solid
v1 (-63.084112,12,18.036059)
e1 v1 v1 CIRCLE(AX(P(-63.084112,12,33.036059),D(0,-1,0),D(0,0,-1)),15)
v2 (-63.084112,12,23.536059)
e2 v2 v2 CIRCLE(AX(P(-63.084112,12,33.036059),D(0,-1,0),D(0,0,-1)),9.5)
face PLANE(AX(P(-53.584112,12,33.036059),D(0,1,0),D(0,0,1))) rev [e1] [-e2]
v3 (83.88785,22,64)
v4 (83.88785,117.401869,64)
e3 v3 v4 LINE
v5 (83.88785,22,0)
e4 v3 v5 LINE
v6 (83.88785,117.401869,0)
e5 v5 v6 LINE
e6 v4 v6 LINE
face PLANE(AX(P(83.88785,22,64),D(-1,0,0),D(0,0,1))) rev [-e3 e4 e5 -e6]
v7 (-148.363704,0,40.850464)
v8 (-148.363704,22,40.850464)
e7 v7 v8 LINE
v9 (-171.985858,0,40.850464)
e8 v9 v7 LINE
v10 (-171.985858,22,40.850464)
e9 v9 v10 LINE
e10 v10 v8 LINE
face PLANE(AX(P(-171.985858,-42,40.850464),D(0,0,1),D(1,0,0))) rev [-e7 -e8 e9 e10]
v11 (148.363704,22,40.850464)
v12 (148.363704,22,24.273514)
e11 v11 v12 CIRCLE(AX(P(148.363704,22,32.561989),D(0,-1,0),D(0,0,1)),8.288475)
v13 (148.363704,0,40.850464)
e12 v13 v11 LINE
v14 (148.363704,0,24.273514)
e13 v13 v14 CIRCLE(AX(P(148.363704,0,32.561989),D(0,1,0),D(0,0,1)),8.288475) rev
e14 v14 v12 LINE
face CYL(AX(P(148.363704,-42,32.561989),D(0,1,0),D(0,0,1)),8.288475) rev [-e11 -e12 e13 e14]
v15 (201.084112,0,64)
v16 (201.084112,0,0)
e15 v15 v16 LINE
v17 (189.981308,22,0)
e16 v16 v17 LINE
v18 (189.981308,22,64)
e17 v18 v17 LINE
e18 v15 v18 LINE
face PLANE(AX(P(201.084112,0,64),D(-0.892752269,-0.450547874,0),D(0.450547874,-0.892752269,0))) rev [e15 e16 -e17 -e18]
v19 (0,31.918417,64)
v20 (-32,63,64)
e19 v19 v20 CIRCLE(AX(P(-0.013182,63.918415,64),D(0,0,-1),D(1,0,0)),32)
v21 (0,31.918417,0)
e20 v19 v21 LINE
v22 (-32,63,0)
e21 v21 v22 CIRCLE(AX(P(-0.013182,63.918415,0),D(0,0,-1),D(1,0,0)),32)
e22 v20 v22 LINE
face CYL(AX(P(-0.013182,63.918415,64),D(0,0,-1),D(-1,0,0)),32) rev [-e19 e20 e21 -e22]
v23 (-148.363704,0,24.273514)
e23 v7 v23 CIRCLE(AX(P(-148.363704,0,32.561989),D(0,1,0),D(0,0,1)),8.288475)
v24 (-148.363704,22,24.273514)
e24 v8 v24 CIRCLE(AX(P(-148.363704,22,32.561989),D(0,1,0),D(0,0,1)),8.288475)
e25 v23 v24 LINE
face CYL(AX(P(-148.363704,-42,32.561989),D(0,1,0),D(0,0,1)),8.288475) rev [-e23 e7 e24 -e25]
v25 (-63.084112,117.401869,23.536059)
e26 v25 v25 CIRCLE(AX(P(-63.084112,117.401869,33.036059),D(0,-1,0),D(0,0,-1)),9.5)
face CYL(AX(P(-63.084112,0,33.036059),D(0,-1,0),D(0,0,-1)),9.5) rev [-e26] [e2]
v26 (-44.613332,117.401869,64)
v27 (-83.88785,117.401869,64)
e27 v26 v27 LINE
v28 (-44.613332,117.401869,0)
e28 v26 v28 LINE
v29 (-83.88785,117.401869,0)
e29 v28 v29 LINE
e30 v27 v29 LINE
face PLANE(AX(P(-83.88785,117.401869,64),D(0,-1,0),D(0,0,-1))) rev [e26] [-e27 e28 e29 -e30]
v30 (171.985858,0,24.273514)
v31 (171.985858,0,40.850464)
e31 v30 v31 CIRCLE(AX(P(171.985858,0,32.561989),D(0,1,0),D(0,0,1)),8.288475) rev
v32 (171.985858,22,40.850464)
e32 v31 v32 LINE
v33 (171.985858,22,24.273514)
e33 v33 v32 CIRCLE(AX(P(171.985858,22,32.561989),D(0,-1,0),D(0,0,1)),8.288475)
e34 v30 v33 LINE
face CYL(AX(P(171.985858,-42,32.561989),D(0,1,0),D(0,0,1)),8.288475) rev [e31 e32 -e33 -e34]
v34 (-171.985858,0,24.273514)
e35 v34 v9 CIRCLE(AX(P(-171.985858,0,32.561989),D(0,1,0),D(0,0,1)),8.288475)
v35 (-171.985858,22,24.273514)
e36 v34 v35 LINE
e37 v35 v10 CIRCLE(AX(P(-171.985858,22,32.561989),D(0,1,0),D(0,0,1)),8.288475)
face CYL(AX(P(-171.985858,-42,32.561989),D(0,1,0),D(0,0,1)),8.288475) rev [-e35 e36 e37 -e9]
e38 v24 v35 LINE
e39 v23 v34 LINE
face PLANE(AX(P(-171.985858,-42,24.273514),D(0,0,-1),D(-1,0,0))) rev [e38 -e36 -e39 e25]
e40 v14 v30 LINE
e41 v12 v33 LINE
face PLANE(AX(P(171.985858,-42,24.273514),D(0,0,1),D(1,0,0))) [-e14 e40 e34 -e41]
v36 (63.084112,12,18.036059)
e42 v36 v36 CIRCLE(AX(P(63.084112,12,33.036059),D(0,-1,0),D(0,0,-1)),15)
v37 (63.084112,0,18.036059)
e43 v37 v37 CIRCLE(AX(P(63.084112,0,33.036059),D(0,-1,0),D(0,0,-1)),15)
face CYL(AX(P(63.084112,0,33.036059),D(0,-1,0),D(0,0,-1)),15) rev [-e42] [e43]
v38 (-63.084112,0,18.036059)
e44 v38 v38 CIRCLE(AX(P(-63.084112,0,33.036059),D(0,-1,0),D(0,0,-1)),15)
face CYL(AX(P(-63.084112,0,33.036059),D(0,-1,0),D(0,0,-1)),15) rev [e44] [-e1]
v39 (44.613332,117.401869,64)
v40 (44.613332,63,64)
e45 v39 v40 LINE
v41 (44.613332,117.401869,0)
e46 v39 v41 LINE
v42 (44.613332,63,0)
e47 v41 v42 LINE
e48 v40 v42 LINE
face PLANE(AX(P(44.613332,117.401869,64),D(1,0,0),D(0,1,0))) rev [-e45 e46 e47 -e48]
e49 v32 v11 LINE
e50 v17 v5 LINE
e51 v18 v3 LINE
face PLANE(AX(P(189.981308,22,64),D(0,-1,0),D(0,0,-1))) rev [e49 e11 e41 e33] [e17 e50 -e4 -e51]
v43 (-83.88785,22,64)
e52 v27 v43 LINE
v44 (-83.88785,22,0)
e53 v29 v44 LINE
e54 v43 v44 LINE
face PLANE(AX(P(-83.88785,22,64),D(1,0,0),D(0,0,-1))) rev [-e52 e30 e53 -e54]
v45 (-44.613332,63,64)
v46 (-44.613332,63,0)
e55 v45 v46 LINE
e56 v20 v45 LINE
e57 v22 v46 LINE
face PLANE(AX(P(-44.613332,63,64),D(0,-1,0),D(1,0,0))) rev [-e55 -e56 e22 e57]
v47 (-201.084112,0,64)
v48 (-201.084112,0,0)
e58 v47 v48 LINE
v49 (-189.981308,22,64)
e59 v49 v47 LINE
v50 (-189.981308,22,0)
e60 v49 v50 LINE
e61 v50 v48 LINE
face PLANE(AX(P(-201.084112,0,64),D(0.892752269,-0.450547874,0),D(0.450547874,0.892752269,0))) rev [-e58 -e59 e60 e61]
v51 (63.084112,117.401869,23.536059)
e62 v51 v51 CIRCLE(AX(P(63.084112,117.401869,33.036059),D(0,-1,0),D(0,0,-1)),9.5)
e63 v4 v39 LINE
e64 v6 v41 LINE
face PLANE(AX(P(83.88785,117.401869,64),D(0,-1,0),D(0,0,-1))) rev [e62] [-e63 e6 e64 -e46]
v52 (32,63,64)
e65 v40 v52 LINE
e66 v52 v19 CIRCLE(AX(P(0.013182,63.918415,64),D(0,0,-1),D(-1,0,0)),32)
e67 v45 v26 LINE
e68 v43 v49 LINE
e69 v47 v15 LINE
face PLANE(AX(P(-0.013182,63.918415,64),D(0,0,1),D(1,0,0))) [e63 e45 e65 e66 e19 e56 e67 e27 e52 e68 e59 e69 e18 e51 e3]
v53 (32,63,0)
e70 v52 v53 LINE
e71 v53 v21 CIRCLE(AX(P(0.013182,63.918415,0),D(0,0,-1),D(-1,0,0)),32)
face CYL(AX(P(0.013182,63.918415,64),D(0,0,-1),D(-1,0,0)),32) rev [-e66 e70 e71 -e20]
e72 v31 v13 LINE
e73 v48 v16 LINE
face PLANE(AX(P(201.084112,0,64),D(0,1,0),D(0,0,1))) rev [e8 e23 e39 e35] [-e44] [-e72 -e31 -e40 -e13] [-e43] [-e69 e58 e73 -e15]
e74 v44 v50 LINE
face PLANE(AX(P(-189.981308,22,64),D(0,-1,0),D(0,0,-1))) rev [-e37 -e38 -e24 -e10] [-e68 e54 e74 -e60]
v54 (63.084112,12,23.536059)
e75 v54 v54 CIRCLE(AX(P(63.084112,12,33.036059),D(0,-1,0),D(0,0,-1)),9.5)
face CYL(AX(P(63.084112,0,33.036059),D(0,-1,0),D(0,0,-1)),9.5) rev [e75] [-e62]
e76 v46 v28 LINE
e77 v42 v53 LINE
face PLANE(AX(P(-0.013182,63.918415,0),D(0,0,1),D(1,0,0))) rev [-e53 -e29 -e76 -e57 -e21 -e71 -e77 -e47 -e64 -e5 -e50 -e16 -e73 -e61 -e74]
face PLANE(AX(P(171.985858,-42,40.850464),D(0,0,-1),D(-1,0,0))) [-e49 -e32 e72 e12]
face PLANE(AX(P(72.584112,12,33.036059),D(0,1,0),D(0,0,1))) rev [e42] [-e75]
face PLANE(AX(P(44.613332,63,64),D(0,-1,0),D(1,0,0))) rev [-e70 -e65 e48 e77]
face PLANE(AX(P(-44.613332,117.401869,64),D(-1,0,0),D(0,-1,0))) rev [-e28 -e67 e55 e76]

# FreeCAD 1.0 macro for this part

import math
import FreeCAD as App
import Part
import Sketcher
from FreeCAD import Vector
Q = App.Units.Quantity


def add_polygon(sketch, points):
    """Adds a closed chain of lines whose ends are joined by coincident constraints."""
    first, n = sketch.GeometryCount, len(points)
    for a, b in zip(points, points[1:] + points[:1]):
        sketch.addGeometry(Part.LineSegment(App.Vector(*a, 0), App.Vector(*b, 0)), False)
    for i in range(n):
        sketch.addConstraint(Sketcher.Constraint("Coincident", first + i, 2, first + (i + 1) % n, 1))

doc = App.newDocument("Part")
body = doc.addObject("PartDesign::Body", "Body")

sketch1 = doc.addObject("Sketcher::SketchObject", "Sketch")
body.addObject(sketch1)
sketch1.AttachmentSupport = (doc.XY_Plane, [""])
sketch1.MapMode = "FlatFace"
sketch1.addGeometry(Part.LineSegment(Vector(-190, 22, 0), Vector(-201, 0, 0)), False)
sketch1.addGeometry(Part.LineSegment(Vector(-201, 0, 0), Vector(201, 0, 0)), False)
sketch1.addGeometry(Part.LineSegment(Vector(201, 0, 0), Vector(190, 22, 0)), False)
sketch1.addGeometry(Part.LineSegment(Vector(190, 22, 0), Vector(84, 22, 0)), False)
sketch1.addGeometry(Part.LineSegment(Vector(84, 22, 0), Vector(84, 117, 0)), False)
sketch1.addGeometry(Part.LineSegment(Vector(84, 117, 0), Vector(45, 117, 0)), False)
sketch1.addGeometry(Part.LineSegment(Vector(45, 117, 0), Vector(45, 63, 0)), False)
sketch1.addGeometry(Part.LineSegment(Vector(45, 63, 0), Vector(32, 63, 0)), False)
sketch1.addGeometry(Part.ArcOfCircle(Part.Circle(Vector(0, 64, 0), Vector(0, 0, 1), 32), math.radians(-90), math.radians(-2)), False)
sketch1.addGeometry(Part.ArcOfCircle(Part.Circle(Vector(0, 64, 0), Vector(0, 0, 1), 32), math.radians(-178), math.radians(-90)), False)
sketch1.addGeometry(Part.LineSegment(Vector(-32, 63, 0), Vector(-45, 63, 0)), False)
sketch1.addGeometry(Part.LineSegment(Vector(-45, 63, 0), Vector(-45, 117, 0)), False)
sketch1.addGeometry(Part.LineSegment(Vector(-45, 117, 0), Vector(-84, 117, 0)), False)
sketch1.addGeometry(Part.LineSegment(Vector(-84, 117, 0), Vector(-84, 22, 0)), False)
sketch1.addGeometry(Part.LineSegment(Vector(-84, 22, 0), Vector(-190, 22, 0)), False)
sketch1.addConstraint(Sketcher.Constraint("Coincident", 0, 2, 1, 1))
sketch1.addConstraint(Sketcher.Constraint("Coincident", 1, 2, 2, 1))
sketch1.addConstraint(Sketcher.Constraint("Coincident", 2, 2, 3, 1))
sketch1.addConstraint(Sketcher.Constraint("Coincident", 3, 2, 4, 1))
sketch1.addConstraint(Sketcher.Constraint("Coincident", 4, 2, 5, 1))
sketch1.addConstraint(Sketcher.Constraint("Coincident", 5, 2, 6, 1))
sketch1.addConstraint(Sketcher.Constraint("Coincident", 6, 2, 7, 1))
sketch1.addConstraint(Sketcher.Constraint("Coincident", 7, 2, 8, 2))
sketch1.addConstraint(Sketcher.Constraint("Coincident", 8, 1, 9, 2))
sketch1.addConstraint(Sketcher.Constraint("Coincident", 9, 1, 10, 1))
sketch1.addConstraint(Sketcher.Constraint("Coincident", 10, 2, 11, 1))
sketch1.addConstraint(Sketcher.Constraint("Coincident", 11, 2, 12, 1))
sketch1.addConstraint(Sketcher.Constraint("Coincident", 12, 2, 13, 1))
sketch1.addConstraint(Sketcher.Constraint("Coincident", 13, 2, 14, 1))
sketch1.addConstraint(Sketcher.Constraint("Coincident", 14, 2, 0, 1))
sketch1.addConstraint(Sketcher.Constraint("Horizontal", 1))
sketch1.addConstraint(Sketcher.Constraint("Horizontal", 3))
sketch1.addConstraint(Sketcher.Constraint("Vertical", 4))
sketch1.addConstraint(Sketcher.Constraint("Horizontal", 5))
sketch1.addConstraint(Sketcher.Constraint("Vertical", 6))
sketch1.addConstraint(Sketcher.Constraint("Horizontal", 7))
sketch1.addConstraint(Sketcher.Constraint("Horizontal", 10))
sketch1.addConstraint(Sketcher.Constraint("Vertical", 11))
sketch1.addConstraint(Sketcher.Constraint("Horizontal", 12))
sketch1.addConstraint(Sketcher.Constraint("Vertical", 13))
sketch1.addConstraint(Sketcher.Constraint("Horizontal", 14))
sketch1.addConstraint(Sketcher.Constraint("Equal", 8, 9))
sketch1.addConstraint(Sketcher.Constraint("Symmetric", 0, 2, 1, 2, -1, 1))
sketch1.addConstraint(Sketcher.Constraint("Symmetric", 8, 3, 9, 3, -2))
sketch1.addConstraint(Sketcher.Constraint("Symmetric", 6, 2, 10, 2, -2))
sketch1.addConstraint(Sketcher.Constraint("Symmetric", 4, 2, 12, 2, -2))
sketch1.addConstraint(Sketcher.Constraint("Symmetric", 2, 2, 14, 2, -2))
sketch1.addConstraint(Sketcher.Constraint("Radius", 8, Q("32 mm")))
sketch1.addConstraint(Sketcher.Constraint("DistanceY", -1, 1, 2, 2, Q("22 mm")))
sketch1.addConstraint(Sketcher.Constraint("DistanceY", -1, 1, 6, 2, Q("63 mm")))
sketch1.addConstraint(Sketcher.Constraint("DistanceX", -1, 1, 7, 2, Q("32 mm")))
sketch1.addConstraint(Sketcher.Constraint("DistanceX", 5, 2, 5, 1, Q("39.274518 mm")))
sketch1.addConstraint(Sketcher.Constraint("DistanceY", 4, 1, 4, 2, Q("95.401869 mm")))
sketch1.addConstraint(Sketcher.Constraint("DistanceX", 1, 1, 1, 2, Q("402.168224 mm")))
sketch1.addConstraint(Sketcher.Constraint("DistanceX", 3, 2, 3, 1, Q("106.093458 mm")))
sketch1.addConstraint(Sketcher.Constraint("DistanceX", 7, 2, 7, 1, Q("12.613332 mm")))
sketch1.addConstraint(Sketcher.Constraint("DistanceX", 0, 2, 9, 3, Q("201.07093 mm")))
pad1 = doc.addObject("PartDesign::Pad", "Pad")
body.addObject(pad1)
pad1.Profile = sketch1
pad1.Length = 64

sketch2 = doc.addObject("Sketcher::SketchObject", "Sketch001")
body.addObject(sketch2)
sketch2.AttachmentSupport = (doc.XZ_Plane, [""])
sketch2.MapMode = "FlatFace"
sketch2.AttachmentOffset = App.Placement(Vector(0, 0, -22), App.Rotation())
sketch2.addGeometry(Part.LineSegment(Vector(-148, 24, 0), Vector(-172, 24, 0)), False)
sketch2.addGeometry(Part.ArcOfCircle(Part.Circle(Vector(-172, 33, 0), Vector(0, 0, 1), 8), math.radians(90), math.radians(270)), False)
sketch2.addGeometry(Part.LineSegment(Vector(-172, 41, 0), Vector(-148, 41, 0)), False)
sketch2.addGeometry(Part.ArcOfCircle(Part.Circle(Vector(-148, 33, 0), Vector(0, 0, 1), 8), math.radians(-90), math.radians(90)), False)
sketch2.addConstraint(Sketcher.Constraint("Tangent", 0, 2, 1, 2))
sketch2.addConstraint(Sketcher.Constraint("Tangent", 1, 1, 2, 1))
sketch2.addConstraint(Sketcher.Constraint("Tangent", 2, 2, 3, 2))
sketch2.addConstraint(Sketcher.Constraint("Tangent", 3, 1, 0, 1))
sketch2.addConstraint(Sketcher.Constraint("Horizontal", 0))
sketch2.addConstraint(Sketcher.Constraint("Horizontal", 2))
sketch2.addConstraint(Sketcher.Constraint("Radius", 1, Q("8.288475 mm")))
sketch2.addConstraint(Sketcher.Constraint("DistanceX", 0, 2, 0, 1, Q("23.622154 mm")))
sketch2.addConstraint(Sketcher.Constraint("DistanceY", -1, 1, 1, 3, Q("32.561989 mm")))
sketch2.addConstraint(Sketcher.Constraint("DistanceX", 1, 3, -1, 1, Q("171.985858 mm")))
pocket1 = doc.addObject("PartDesign::Pocket", "Pocket")
body.addObject(pocket1)
pocket1.Profile = sketch2
pocket1.Length = 64
pocket1.Reversed = True

sketch3 = doc.addObject("Sketcher::SketchObject", "Sketch002")
body.addObject(sketch3)
sketch3.AttachmentSupport = (doc.YZ_Plane, [""])
sketch3.MapMode = "FlatFace"
sketch3.AttachmentOffset = App.Placement(Vector(0, 0, -63.084112), App.Rotation())
add_polygon(sketch3, [(136, 33), (0, 33), (0, 18), (12, 18), (12, 24), (130, 24)])
sketch3.addGeometry(Part.LineSegment(Vector(0, 33, 0), Vector(136, 33, 0)), True)
sketch3.addConstraint(Sketcher.Constraint("Horizontal", 0))
sketch3.addConstraint(Sketcher.Constraint("Vertical", 1))
sketch3.addConstraint(Sketcher.Constraint("Horizontal", 2))
sketch3.addConstraint(Sketcher.Constraint("Vertical", 3))
sketch3.addConstraint(Sketcher.Constraint("Horizontal", 4))
sketch3.addConstraint(Sketcher.Constraint("Horizontal", 6))
sketch3.addConstraint(Sketcher.Constraint("Coincident", 6, 1, 0, 2))
sketch3.addConstraint(Sketcher.Constraint("PointOnObject", 0, 2, -2))
sketch3.addConstraint(Sketcher.Constraint("Equal", 0, 6))
sketch3.addConstraint(Sketcher.Constraint("DistanceX", 2, 1, 2, 2, Q("12 mm")))
sketch3.addConstraint(Sketcher.Constraint("DistanceX", 4, 1, 4, 2, Q("118 mm")))
sketch3.addConstraint(Sketcher.Constraint("DistanceY", 1, 2, 1, 1, Q("15 mm")))
sketch3.addConstraint(Sketcher.Constraint("Angle", 5, Q("59 deg")))
sketch3.addConstraint(Sketcher.Constraint("DistanceY", 3, 1, 3, 2, Q("5.5 mm")))
sketch3.addConstraint(Sketcher.Constraint("DistanceY", -1, 1, 0, 2, Q("33.036059 mm")))
groove = doc.addObject("PartDesign::Groove", "Groove")
body.addObject(groove)
groove.Profile = sketch3
groove.ReferenceAxis = (sketch3, ["Axis0"])
groove.Angle = 360
doc.recompute()

mirrored = doc.addObject("PartDesign::Mirrored", "Mirrored")
body.addObject(mirrored)
mirrored.Originals = [pocket1, groove]
mirrored.MirrorPlane = (doc.YZ_Plane, [""])
body.Tip = mirrored

doc.recompute()
